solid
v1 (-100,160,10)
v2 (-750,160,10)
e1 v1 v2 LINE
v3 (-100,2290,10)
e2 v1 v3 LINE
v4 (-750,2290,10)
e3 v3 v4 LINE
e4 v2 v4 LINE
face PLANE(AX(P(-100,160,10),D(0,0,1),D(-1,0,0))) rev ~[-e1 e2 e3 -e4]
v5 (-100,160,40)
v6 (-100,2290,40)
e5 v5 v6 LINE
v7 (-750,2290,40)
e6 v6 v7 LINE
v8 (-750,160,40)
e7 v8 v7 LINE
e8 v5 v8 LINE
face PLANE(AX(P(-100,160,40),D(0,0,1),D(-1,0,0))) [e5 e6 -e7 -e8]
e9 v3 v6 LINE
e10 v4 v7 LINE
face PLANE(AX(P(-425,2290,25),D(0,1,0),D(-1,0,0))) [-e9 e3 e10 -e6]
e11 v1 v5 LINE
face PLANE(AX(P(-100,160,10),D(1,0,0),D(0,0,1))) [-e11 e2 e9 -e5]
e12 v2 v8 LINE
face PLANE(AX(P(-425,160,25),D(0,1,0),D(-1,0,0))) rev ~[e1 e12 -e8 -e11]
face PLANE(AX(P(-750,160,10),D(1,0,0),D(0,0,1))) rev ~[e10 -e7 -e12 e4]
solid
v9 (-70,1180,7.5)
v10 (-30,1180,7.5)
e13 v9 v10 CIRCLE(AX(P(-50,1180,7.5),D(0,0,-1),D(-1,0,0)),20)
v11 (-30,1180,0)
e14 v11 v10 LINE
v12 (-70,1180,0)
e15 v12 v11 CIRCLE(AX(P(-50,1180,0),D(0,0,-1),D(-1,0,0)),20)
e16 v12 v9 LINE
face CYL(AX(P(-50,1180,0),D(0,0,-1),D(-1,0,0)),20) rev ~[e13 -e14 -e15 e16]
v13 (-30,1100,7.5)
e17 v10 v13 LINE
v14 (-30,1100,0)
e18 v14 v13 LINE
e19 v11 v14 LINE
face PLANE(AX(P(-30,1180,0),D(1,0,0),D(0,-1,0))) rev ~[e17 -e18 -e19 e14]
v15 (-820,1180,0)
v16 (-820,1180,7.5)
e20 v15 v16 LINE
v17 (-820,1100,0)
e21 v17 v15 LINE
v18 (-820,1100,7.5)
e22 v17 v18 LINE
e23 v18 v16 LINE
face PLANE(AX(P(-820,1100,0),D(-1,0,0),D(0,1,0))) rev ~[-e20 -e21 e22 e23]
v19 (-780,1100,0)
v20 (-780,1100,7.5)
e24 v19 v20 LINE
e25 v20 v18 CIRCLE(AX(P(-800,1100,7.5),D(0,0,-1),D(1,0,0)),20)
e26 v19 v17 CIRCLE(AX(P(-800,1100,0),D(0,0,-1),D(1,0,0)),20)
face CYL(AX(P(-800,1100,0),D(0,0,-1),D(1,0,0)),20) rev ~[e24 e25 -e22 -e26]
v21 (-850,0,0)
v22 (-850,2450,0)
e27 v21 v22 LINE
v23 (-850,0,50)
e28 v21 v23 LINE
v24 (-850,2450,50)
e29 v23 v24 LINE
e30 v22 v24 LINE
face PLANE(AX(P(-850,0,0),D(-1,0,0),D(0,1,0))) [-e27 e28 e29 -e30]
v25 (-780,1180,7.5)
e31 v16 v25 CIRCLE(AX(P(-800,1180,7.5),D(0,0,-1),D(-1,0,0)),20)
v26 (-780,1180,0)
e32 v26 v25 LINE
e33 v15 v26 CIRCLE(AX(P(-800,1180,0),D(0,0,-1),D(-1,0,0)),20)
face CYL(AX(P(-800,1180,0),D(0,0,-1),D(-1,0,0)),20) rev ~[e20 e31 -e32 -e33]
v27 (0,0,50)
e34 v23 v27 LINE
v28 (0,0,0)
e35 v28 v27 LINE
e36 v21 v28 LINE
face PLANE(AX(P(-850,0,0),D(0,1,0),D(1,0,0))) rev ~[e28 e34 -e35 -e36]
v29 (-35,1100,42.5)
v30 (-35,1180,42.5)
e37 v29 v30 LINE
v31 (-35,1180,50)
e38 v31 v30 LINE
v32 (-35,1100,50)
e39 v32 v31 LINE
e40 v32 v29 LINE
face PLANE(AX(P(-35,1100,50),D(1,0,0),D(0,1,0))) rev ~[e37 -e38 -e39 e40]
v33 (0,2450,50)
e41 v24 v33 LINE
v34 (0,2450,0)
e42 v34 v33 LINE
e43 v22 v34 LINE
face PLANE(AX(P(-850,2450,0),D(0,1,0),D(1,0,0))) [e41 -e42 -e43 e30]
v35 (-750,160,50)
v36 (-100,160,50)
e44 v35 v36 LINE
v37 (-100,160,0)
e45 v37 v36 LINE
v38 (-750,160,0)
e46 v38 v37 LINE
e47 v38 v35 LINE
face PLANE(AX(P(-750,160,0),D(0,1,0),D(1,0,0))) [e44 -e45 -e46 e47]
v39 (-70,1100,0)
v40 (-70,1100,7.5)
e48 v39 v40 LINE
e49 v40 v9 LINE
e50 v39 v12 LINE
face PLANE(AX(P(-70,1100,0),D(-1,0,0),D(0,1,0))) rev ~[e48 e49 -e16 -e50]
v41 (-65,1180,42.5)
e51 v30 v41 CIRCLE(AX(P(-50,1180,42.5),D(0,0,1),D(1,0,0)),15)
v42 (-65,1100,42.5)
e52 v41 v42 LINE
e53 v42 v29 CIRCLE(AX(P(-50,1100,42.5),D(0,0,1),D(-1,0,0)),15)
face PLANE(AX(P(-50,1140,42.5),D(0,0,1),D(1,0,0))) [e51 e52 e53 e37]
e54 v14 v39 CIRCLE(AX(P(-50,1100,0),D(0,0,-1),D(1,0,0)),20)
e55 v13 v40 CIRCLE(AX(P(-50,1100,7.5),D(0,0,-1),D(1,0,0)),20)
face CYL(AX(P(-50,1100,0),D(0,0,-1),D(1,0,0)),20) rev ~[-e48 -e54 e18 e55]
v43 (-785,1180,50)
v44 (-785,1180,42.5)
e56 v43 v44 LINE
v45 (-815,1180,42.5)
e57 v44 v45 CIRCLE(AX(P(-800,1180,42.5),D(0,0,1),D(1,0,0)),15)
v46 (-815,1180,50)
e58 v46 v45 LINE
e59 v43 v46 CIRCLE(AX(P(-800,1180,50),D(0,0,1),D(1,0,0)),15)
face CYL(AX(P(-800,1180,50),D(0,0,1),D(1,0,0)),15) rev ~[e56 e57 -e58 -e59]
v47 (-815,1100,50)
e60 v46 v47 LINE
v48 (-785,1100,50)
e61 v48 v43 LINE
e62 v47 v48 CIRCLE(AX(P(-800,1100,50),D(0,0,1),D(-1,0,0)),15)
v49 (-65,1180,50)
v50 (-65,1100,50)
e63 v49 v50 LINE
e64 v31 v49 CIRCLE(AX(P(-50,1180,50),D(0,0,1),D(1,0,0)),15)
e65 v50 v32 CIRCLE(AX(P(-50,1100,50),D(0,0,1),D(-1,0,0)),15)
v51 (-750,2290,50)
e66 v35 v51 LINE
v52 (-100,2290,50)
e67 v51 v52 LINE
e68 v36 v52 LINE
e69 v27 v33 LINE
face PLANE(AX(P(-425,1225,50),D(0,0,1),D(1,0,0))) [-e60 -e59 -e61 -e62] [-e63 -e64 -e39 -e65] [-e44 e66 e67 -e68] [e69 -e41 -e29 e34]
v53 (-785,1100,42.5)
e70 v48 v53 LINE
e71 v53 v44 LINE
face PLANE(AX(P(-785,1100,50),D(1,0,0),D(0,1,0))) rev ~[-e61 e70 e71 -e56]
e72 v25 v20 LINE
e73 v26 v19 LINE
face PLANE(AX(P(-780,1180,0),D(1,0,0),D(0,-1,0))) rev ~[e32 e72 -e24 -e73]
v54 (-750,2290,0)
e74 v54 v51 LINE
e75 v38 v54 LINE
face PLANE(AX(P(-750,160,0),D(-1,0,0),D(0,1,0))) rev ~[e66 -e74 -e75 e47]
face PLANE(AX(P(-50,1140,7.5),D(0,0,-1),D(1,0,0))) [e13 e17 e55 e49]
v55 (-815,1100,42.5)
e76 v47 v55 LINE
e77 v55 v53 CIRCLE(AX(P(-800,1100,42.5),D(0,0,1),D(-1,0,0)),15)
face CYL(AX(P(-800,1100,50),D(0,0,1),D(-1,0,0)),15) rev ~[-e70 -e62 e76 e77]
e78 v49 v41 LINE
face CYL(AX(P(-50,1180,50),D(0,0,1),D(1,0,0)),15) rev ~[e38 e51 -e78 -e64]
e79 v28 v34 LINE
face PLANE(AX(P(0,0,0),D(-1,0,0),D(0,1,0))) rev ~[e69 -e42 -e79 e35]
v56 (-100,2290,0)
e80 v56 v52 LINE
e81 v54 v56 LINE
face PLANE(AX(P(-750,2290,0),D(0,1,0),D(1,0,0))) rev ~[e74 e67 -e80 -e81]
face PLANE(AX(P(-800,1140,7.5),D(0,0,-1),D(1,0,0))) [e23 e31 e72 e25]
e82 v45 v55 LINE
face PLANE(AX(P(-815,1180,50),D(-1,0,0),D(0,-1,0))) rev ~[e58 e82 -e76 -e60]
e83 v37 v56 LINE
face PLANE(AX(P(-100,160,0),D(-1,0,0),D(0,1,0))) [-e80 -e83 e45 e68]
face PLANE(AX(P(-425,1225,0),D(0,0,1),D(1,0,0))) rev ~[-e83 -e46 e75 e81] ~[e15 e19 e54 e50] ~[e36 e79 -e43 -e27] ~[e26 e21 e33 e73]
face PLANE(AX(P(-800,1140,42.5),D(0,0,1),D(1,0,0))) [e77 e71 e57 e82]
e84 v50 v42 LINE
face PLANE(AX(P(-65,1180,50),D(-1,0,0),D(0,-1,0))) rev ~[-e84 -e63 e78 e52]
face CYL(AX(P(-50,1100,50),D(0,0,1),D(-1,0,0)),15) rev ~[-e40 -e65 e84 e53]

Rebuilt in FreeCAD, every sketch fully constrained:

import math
import FreeCAD as App
import Part
import Sketcher

V = App.Vector
Q = App.Units.Quantity

doc = App.newDocument("Part")
body = doc.addObject("PartDesign::Body", "Body")

# Sketch on XY plane
sketch1 = doc.addObject("Sketcher::SketchObject", "Sketch")
body.addObject(sketch1)
sketch1.AttachmentSupport = (doc.XY_Plane, [""])
sketch1.MapMode = "FlatFace"
sketch1.addGeometry([
    Part.LineSegment(V(-850, 2450, 0), V(-850, 0, 0)),  # 0
    Part.LineSegment(V(-850, 0, 0), V(0, 0, 0)),  # 1
    Part.LineSegment(V(0, 0, 0), V(0, 2450, 0)),  # 2
    Part.LineSegment(V(0, 2450, 0), V(-850, 2450, 0)),  # 3
    Part.LineSegment(V(-100, 160, 0), V(-750, 160, 0)),  # 4
    Part.LineSegment(V(-750, 160, 0), V(-750, 2290, 0)),  # 5
    Part.LineSegment(V(-750, 2290, 0), V(-100, 2290, 0)),  # 6
    Part.LineSegment(V(-100, 2290, 0), V(-100, 160, 0)),  # 7
], False)
sketch1.addConstraint([
    Sketcher.Constraint("Coincident", 0, 2, 1, 1),
    Sketcher.Constraint("Coincident", 1, 2, 2, 1),
    Sketcher.Constraint("Coincident", 2, 2, 3, 1),
    Sketcher.Constraint("Coincident", 3, 2, 0, 1),
    Sketcher.Constraint("Coincident", 4, 2, 5, 1),
    Sketcher.Constraint("Coincident", 5, 2, 6, 1),
    Sketcher.Constraint("Coincident", 6, 2, 7, 1),
    Sketcher.Constraint("Coincident", 7, 2, 4, 1),
    Sketcher.Constraint("Vertical", 0),
    Sketcher.Constraint("Horizontal", 1),
    Sketcher.Constraint("Vertical", 2),
    Sketcher.Constraint("Horizontal", 3),
    Sketcher.Constraint("Horizontal", 4),
    Sketcher.Constraint("Vertical", 5),
    Sketcher.Constraint("Horizontal", 6),
    Sketcher.Constraint("Vertical", 7),
    Sketcher.Constraint("Coincident", 1, 2, -1, 1),
    Sketcher.Constraint("DistanceX", 1, 1, 1, 2, Q("850 mm")),
    Sketcher.Constraint("DistanceX", 4, 2, 4, 1, Q("650 mm")),
    Sketcher.Constraint("DistanceY", 0, 2, 0, 1, Q("2450 mm")),
    Sketcher.Constraint("DistanceY", 5, 1, 5, 2, Q("2130 mm")),
    Sketcher.Constraint("DistanceX", 4, 2, -1, 1, Q("750 mm")),
    Sketcher.Constraint("DistanceY", -1, 1, 4, 2, Q("160 mm")),
])
pad1 = doc.addObject("PartDesign::Pad", "Pad")
body.addObject(pad1)
pad1.Profile = sketch1
pad1.Length = 50

# Sketch on XY plane
sketch2 = doc.addObject("Sketcher::SketchObject", "Sketch001")
body.addObject(sketch2)
sketch2.AttachmentSupport = (doc.XY_Plane, [""])
sketch2.MapMode = "FlatFace"
sketch2.AttachmentOffset = App.Placement(V(0, 0, 50), App.Rotation())
sketch2.addGeometry([
    Part.ArcOfCircle(Part.Circle(V(-800, 1180, 0), V(0, 0, 1), 15), math.radians(0), math.radians(180)),  # 0
    Part.LineSegment(V(-815, 1180, 0), V(-815, 1100, 0)),  # 1
    Part.ArcOfCircle(Part.Circle(V(-800, 1100, 0), V(0, 0, 1), 15), math.radians(180), math.radians(360)),  # 2
    Part.LineSegment(V(-785, 1100, 0), V(-785, 1180, 0)),  # 3
    Part.LineSegment(V(-65, 1180, 0), V(-65, 1100, 0)),  # 4
    Part.ArcOfCircle(Part.Circle(V(-50, 1100, 0), V(0, 0, 1), 15), math.radians(180), math.radians(360)),  # 5
    Part.LineSegment(V(-35, 1100, 0), V(-35, 1180, 0)),  # 6
    Part.ArcOfCircle(Part.Circle(V(-50, 1180, 0), V(0, 0, 1), 15), math.radians(0), math.radians(180)),  # 7
], False)
sketch2.addConstraint([
    Sketcher.Constraint("Tangent", 0, 2, 1, 1),
    Sketcher.Constraint("Tangent", 1, 2, 2, 1),
    Sketcher.Constraint("Tangent", 2, 2, 3, 1),
    Sketcher.Constraint("Tangent", 3, 2, 0, 1),
    Sketcher.Constraint("Tangent", 4, 2, 5, 1),
    Sketcher.Constraint("Tangent", 5, 2, 6, 1),
    Sketcher.Constraint("Tangent", 6, 2, 7, 1),
    Sketcher.Constraint("Tangent", 7, 2, 4, 1),
    Sketcher.Constraint("Vertical", 1),
    Sketcher.Constraint("Vertical", 3),
    Sketcher.Constraint("Vertical", 4),
    Sketcher.Constraint("Vertical", 6),
    Sketcher.Constraint("Equal", 2, 5),
    Sketcher.Constraint("Horizontal", 2, 3, 5, 3),
    Sketcher.Constraint("Horizontal", 0, 3, 7, 3),
    Sketcher.Constraint("Radius", 0, Q("15 mm")),
    Sketcher.Constraint("DistanceY", 1, 2, 1, 1, Q("80 mm")),
    Sketcher.Constraint("DistanceX", 0, 3, -1, 1, Q("800 mm")),
    Sketcher.Constraint("DistanceY", -1, 1, 0, 3, Q("1180 mm")),
    Sketcher.Constraint("DistanceX", 5, 3, -1, 1, Q("50 mm")),
])
pocket1 = doc.addObject("PartDesign::Pocket", "Pocket")
body.addObject(pocket1)
pocket1.Profile = sketch2
pocket1.Length = 7.5

# Sketch on XY plane
sketch3 = doc.addObject("Sketcher::SketchObject", "Sketch002")
body.addObject(sketch3)
sketch3.AttachmentSupport = (doc.XY_Plane, [""])
sketch3.MapMode = "FlatFace"
sketch3.addGeometry([
    Part.ArcOfCircle(Part.Circle(V(-50, 1180, 0), V(0, 0, 1), 20), math.radians(0), math.radians(180)),  # 0
    Part.LineSegment(V(-30, 1180, 0), V(-30, 1100, 0)),  # 1
    Part.ArcOfCircle(Part.Circle(V(-50, 1100, 0), V(0, 0, 1), 20), math.radians(180), math.radians(360)),  # 2
    Part.LineSegment(V(-70, 1100, 0), V(-70, 1180, 0)),  # 3
    Part.ArcOfCircle(Part.Circle(V(-800, 1180, 0), V(0, 0, 1), 20), math.radians(0), math.radians(180)),  # 4
    Part.LineSegment(V(-780, 1180, 0), V(-780, 1100, 0)),  # 5
    Part.ArcOfCircle(Part.Circle(V(-800, 1100, 0), V(0, 0, 1), 20), math.radians(180), math.radians(360)),  # 6
    Part.LineSegment(V(-820, 1100, 0), V(-820, 1180, 0)),  # 7
], False)
sketch3.addConstraint([
    Sketcher.Constraint("Tangent", 0, 1, 1, 1),
    Sketcher.Constraint("Tangent", 1, 2, 2, 2),
    Sketcher.Constraint("Tangent", 2, 1, 3, 1),
    Sketcher.Constraint("Tangent", 3, 2, 0, 2),
    Sketcher.Constraint("Tangent", 4, 1, 5, 1),
    Sketcher.Constraint("Tangent", 5, 2, 6, 2),
    Sketcher.Constraint("Tangent", 6, 1, 7, 1),
    Sketcher.Constraint("Tangent", 7, 2, 4, 2),
    Sketcher.Constraint("Vertical", 1),
    Sketcher.Constraint("Vertical", 3),
    Sketcher.Constraint("Vertical", 5),
    Sketcher.Constraint("Vertical", 7),
    Sketcher.Constraint("Equal", 2, 4),
    Sketcher.Constraint("Horizontal", 0, 3, 4, 3),
    Sketcher.Constraint("Horizontal", 2, 3, 6, 3),
    Sketcher.Constraint("Radius", 0, Q("20 mm")),
    Sketcher.Constraint("DistanceY", 1, 2, 1, 1, Q("80 mm")),
    Sketcher.Constraint("DistanceX", 0, 3, -1, 1, Q("50 mm")),
    Sketcher.Constraint("DistanceY", -1, 1, 0, 3, Q("1180 mm")),
    Sketcher.Constraint("DistanceX", 4, 3, -1, 1, Q("800 mm")),
])
pocket2 = doc.addObject("PartDesign::Pocket", "Pocket001")
body.addObject(pocket2)
pocket2.Profile = sketch3
pocket2.Length = 7.5
pocket2.Reversed = True
body2 = doc.addObject("PartDesign::Body", "Body001")

# Sketch on XZ plane
sketch4 = doc.addObject("Sketcher::SketchObject", "Sketch003")
body2.addObject(sketch4)
sketch4.AttachmentSupport = (doc.getObject("XZ_Plane001"), [""])
sketch4.MapMode = "FlatFace"
sketch4.AttachmentOffset = App.Placement(V(0, 0, -160), App.Rotation())
sketch4.addGeometry([
    Part.LineSegment(V(-100, 40, 0), V(-100, 10, 0)),
    Part.LineSegment(V(-100, 10, 0), V(-750, 10, 0)),
    Part.LineSegment(V(-750, 10, 0), V(-750, 40, 0)),
    Part.LineSegment(V(-750, 40, 0), V(-100, 40, 0)),
], False)
sketch4.addConstraint([
    Sketcher.Constraint("Coincident", 0, 2, 1, 1),
    Sketcher.Constraint("Coincident", 1, 2, 2, 1),
    Sketcher.Constraint("Coincident", 2, 2, 3, 1),
    Sketcher.Constraint("Coincident", 3, 2, 0, 1),
    Sketcher.Constraint("Vertical", 0),
    Sketcher.Constraint("Horizontal", 1),
    Sketcher.Constraint("Vertical", 2),
    Sketcher.Constraint("Horizontal", 3),
    Sketcher.Constraint("DistanceX", 1, 2, 1, 1, Q("650 mm")),
    Sketcher.Constraint("DistanceY", 0, 2, 0, 1, Q("30 mm")),
    Sketcher.Constraint("DistanceX", 0, 2, -1, 1, Q("100 mm")),
    Sketcher.Constraint("DistanceY", -1, 1, 0, 2, Q("10 mm")),
])
pad2 = doc.addObject("PartDesign::Pad", "Pad001")
body2.addObject(pad2)
pad2.Profile = sketch4
pad2.Length = 2130
pad2.Reversed = True

doc.recompute()
